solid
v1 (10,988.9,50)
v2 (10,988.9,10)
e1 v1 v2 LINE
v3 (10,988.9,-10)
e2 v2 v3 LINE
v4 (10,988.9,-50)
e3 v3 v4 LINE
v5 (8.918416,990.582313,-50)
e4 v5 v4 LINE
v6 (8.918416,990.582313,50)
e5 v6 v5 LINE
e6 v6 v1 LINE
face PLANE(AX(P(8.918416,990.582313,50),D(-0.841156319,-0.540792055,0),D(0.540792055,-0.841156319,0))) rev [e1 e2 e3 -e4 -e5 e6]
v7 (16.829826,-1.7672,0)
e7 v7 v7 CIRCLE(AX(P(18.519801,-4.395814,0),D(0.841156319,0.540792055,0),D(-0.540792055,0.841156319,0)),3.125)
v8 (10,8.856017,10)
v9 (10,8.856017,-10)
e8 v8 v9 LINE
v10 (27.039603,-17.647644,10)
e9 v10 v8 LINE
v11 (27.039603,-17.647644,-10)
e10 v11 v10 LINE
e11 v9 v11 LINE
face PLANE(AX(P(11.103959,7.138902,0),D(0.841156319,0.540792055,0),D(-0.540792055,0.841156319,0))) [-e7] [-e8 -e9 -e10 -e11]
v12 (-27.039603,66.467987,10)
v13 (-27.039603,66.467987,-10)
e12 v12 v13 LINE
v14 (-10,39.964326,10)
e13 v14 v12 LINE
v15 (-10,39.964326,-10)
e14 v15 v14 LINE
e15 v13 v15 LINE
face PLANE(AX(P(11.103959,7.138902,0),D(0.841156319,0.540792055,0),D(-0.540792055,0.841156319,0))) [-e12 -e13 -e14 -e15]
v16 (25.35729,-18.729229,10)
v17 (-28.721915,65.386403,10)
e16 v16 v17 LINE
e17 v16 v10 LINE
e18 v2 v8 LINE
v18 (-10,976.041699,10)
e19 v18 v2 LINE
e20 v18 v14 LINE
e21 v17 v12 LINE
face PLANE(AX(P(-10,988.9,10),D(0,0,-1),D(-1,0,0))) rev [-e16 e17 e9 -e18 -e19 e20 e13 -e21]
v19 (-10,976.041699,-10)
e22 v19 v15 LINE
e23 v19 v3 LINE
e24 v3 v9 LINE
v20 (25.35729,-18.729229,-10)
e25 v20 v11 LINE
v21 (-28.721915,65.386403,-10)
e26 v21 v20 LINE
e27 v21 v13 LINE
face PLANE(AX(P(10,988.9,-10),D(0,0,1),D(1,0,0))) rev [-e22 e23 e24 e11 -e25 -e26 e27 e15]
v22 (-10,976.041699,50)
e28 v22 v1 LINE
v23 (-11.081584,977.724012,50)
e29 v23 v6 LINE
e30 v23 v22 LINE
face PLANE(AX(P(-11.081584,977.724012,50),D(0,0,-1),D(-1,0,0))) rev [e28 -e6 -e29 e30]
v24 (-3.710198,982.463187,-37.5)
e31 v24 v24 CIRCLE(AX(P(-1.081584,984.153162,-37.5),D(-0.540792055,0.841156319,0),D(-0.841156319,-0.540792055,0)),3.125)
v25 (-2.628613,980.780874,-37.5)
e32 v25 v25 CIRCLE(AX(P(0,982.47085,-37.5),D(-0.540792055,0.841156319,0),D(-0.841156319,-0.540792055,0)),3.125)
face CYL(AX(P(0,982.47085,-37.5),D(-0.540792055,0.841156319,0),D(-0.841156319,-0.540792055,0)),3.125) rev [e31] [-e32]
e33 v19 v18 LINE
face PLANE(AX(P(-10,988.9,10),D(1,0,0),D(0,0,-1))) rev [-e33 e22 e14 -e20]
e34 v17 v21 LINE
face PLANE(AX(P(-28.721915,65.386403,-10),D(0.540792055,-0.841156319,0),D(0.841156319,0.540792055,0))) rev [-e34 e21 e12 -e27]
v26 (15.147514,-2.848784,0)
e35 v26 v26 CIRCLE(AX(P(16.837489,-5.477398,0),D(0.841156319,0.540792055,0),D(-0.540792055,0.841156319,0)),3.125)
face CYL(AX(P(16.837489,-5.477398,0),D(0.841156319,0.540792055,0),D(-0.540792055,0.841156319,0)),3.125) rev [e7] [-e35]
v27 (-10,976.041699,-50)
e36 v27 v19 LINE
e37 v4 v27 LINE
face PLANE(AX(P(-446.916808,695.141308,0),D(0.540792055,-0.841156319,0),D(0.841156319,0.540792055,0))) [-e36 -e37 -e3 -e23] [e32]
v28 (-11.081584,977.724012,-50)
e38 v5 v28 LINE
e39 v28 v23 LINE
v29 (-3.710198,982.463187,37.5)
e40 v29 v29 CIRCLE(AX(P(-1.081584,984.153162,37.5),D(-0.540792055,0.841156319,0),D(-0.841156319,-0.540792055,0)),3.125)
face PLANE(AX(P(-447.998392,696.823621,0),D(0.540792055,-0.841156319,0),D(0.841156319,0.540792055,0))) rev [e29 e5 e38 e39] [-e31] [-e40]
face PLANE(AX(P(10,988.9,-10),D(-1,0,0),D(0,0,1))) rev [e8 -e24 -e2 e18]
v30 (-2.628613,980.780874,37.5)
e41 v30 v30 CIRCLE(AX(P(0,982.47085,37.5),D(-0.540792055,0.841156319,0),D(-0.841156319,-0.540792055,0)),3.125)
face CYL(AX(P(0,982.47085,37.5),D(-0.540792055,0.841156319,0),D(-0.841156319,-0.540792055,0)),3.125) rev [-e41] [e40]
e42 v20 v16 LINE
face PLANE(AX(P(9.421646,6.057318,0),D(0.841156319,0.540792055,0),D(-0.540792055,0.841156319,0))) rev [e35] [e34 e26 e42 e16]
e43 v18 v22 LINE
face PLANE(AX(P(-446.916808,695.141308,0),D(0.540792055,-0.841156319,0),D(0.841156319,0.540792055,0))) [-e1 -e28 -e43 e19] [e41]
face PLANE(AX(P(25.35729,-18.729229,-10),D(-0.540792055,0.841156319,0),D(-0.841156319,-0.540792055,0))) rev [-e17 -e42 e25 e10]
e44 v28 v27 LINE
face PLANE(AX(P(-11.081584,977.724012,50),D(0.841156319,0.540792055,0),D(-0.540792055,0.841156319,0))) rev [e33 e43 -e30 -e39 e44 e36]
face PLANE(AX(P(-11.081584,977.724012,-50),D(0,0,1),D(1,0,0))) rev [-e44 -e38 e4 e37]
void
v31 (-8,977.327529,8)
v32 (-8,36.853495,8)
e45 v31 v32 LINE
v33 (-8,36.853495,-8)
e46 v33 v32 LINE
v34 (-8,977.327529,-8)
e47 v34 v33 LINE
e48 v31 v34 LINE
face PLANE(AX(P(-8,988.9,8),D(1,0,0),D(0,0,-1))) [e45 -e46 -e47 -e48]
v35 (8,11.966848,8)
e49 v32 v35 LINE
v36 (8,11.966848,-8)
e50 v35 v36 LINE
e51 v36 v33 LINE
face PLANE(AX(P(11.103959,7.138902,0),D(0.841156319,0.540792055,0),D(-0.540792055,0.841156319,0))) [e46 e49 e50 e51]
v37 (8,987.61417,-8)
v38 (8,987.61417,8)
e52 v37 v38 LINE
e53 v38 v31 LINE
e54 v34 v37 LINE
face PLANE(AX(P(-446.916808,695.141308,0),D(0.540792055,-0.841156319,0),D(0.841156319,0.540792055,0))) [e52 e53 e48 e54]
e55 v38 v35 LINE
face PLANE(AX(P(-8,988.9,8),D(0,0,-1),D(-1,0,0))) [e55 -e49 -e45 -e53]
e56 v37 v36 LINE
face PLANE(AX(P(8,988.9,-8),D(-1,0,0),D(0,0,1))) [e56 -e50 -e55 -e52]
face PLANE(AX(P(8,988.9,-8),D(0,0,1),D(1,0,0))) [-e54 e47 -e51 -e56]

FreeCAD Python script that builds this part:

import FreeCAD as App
import Part
import Sketcher


def add_polygon(sketch, points):
    """Adds a closed chain of lines whose ends are joined by coincident constraints."""
    first, n = sketch.GeometryCount, len(points)
    for a, b in zip(points, points[1:] + points[:1]):
        sketch.addGeometry(Part.LineSegment(App.Vector(*a, 0), App.Vector(*b, 0)), False)
    for i in range(n):
        sketch.addConstraint(Sketcher.Constraint("Coincident", first + i, 2, first + (i + 1) % n, 1))

doc = App.newDocument("Part")
body = doc.addObject("PartDesign::Body", "Body")

# Sketch on XZ plane
sketch1 = body.newObject("Sketcher::SketchObject", "Sketch")
sketch1.AttachmentSupport = (doc.getObject("XZ_Plane"), [""])
sketch1.MapMode = "FlatFace"
add_polygon(sketch1, [(10, 10), (10, -10), (-10, -10), (-10, 10)])  # lines 0-3
add_polygon(sketch1, [(-8, -8), (8, -8), (8, 8), (-8, 8)])  # lines 4-7
sketch1.addConstraint(Sketcher.Constraint("Vertical", 0))
sketch1.addConstraint(Sketcher.Constraint("Horizontal", 1))
sketch1.addConstraint(Sketcher.Constraint("Vertical", 2))
sketch1.addConstraint(Sketcher.Constraint("Horizontal", 3))
sketch1.addConstraint(Sketcher.Constraint("Horizontal", 4))
sketch1.addConstraint(Sketcher.Constraint("Vertical", 5))
sketch1.addConstraint(Sketcher.Constraint("Horizontal", 6))
sketch1.addConstraint(Sketcher.Constraint("Vertical", 7))
sketch1.addConstraint(Sketcher.Constraint("Symmetric", 0, 2, 2, 2, -1, 1))
sketch1.addConstraint(Sketcher.Constraint("Symmetric", 4, 2, 6, 2, -1, 1))
sketch1.addConstraint(Sketcher.Constraint("Equal", 3, 0))
sketch1.addConstraint(Sketcher.Constraint("Equal", 6, 5))
sketch1.addConstraint(Sketcher.Constraint("DistanceX", 1, 2, 1, 1, 20.0))
sketch1.addConstraint(Sketcher.Constraint("DistanceX", 4, 1, 4, 2, 16.0))
pad1 = body.newObject("PartDesign::Pad", "Pad")
pad1.Profile = sketch1
pad1.Length = 988.9
pad1.Reversed = True

# Sketch on XY plane
sketch2 = body.newObject("Sketcher::SketchObject", "Sketch001")
sketch2.AttachmentSupport = (doc.getObject("XY_Plane"), [""])
sketch2.MapMode = "FlatFace"
sketch2.AttachmentOffset = App.Placement(App.Vector(0, 0, 10), App.Rotation())
sketch2.addGeometry(Part.Circle(App.Vector(0, 10, 0), App.Vector(0, 0, 1), 5), False)
sketch2.addConstraint(Sketcher.Constraint("PointOnObject", 0, 3, -2))
sketch2.addConstraint(Sketcher.Constraint("Diameter", 0, 10.0))
sketch2.addConstraint(Sketcher.Constraint("DistanceY", -1, 1, 0, 3, 10.0))
pocket1 = body.newObject("PartDesign::Pocket", "Pocket")
pocket1.Profile = sketch2
pocket1.Type = "ThroughAll"

# Sketch on XY plane
sketch3 = body.newObject("Sketcher::SketchObject", "Sketch002")
sketch3.AttachmentSupport = (doc.getObject("XY_Plane"), [""])
sketch3.MapMode = "FlatFace"
sketch3.AttachmentOffset = App.Placement(App.Vector(0, 0, 10), App.Rotation())
add_polygon(sketch3, [(-10, 976), (10, 989), (-10, 989)])  # lines 0-2
sketch3.addConstraint(Sketcher.Constraint("Horizontal", 1))
sketch3.addConstraint(Sketcher.Constraint("Vertical", 2))
sketch3.addConstraint(Sketcher.Constraint("DistanceX", 1, 2, 1, 1, 20.0))
sketch3.addConstraint(Sketcher.Constraint("DistanceX", -1, 1, 0, 2, 10.0))
sketch3.addConstraint(Sketcher.Constraint("DistanceY", -1, 1, 0, 2, 988.9))
sketch3.addConstraint(Sketcher.Constraint("DistanceY", 2, 2, 2, 1, 12.858301))
pocket2 = body.newObject("PartDesign::Pocket", "Pocket001")
pocket2.Profile = sketch3
pocket2.Type = "ThroughAll"

# Sketch on XY plane
sketch4 = body.newObject("Sketcher::SketchObject", "Sketch003")
sketch4.AttachmentSupport = (doc.getObject("XY_Plane"), [""])
sketch4.MapMode = "FlatFace"
sketch4.AttachmentOffset = App.Placement(App.Vector(0, 0, -10), App.Rotation())
add_polygon(sketch4, [(-41, 89), (15, 0), (15, -42), (-41, -42)])  # lines 0-3
sketch4.addConstraint(Sketcher.Constraint("Vertical", 1))
sketch4.addConstraint(Sketcher.Constraint("Horizontal", 2))
sketch4.addConstraint(Sketcher.Constraint("Vertical", 3))
sketch4.addConstraint(Sketcher.Constraint("DistanceX", 2, 2, 2, 1, 56.843621))
sketch4.addConstraint(Sketcher.Constraint("DistanceY", 3, 1, 3, 2, 130.988761))
sketch4.addConstraint(Sketcher.Constraint("Distance", 0, 105.11179))
sketch4.addConstraint(Sketcher.Constraint("DistanceY", 1, 2, -1, 1, 42.24302))
sketch4.addConstraint(Sketcher.Constraint("DistanceX", -1, 1, 0, 2, 15.481316))
pocket3 = body.newObject("PartDesign::Pocket", "Pocket002")
pocket3.Profile = sketch4
pocket3.Type = "ThroughAll"
pocket3.Midplane = True

# Sketch on an angled plane
sketch5 = body.newObject("Sketcher::SketchObject", "Sketch004")
sketch5.Placement = App.Placement(App.Vector(11.103959, 7.138902, 0), App.Rotation(App.Vector(0, 0, 1), App.Vector(-0.540792055, 0.841156319, 0), App.Vector(-0.841156319, -0.540792055, 0), "ZXY"))
add_polygon(sketch5, [(-10, 71), (-10, -29), (10, -29), (10, 71)])  # lines 0-3
sketch5.addConstraint(Sketcher.Constraint("Vertical", 0))
sketch5.addConstraint(Sketcher.Constraint("Horizontal", 1))
sketch5.addConstraint(Sketcher.Constraint("Vertical", 2))
sketch5.addConstraint(Sketcher.Constraint("Horizontal", 3))
sketch5.addConstraint(Sketcher.Constraint("DistanceX", 1, 1, 1, 2, 20.0))
sketch5.addConstraint(Sketcher.Constraint("DistanceY", 0, 2, 0, 1, 100.0))
sketch5.addConstraint(Sketcher.Constraint("DistanceX", 0, 2, -1, 1, 10.0))
sketch5.addConstraint(Sketcher.Constraint("DistanceY", 0, 2, -1, 1, 29.46723))
pad2 = body.newObject("PartDesign::Pad", "Pad001")
pad2.Profile = sketch5
pad2.Length = 2

# Sketch on an angled plane
sketch6 = body.newObject("Sketcher::SketchObject", "Sketch005")
sketch6.Placement = App.Placement(App.Vector(-446.916808, 695.141308, 0), App.Rotation(App.Vector(0.841156319, 0.540792055, 0), App.Vector(0, 0, -1), App.Vector(-0.540792055, 0.841156319, 0), "ZXY"))
add_polygon(sketch6, [(519, 50), (519, -50), (543, -50), (543, 50)])  # lines 0-3
sketch6.addConstraint(Sketcher.Constraint("Vertical", 0))
sketch6.addConstraint(Sketcher.Constraint("Horizontal", 1))
sketch6.addConstraint(Sketcher.Constraint("Vertical", 2))
sketch6.addConstraint(Sketcher.Constraint("Horizontal", 3))
sketch6.addConstraint(Sketcher.Constraint("DistanceY", 0, 2, 0, 1, 100.0))
sketch6.addConstraint(Sketcher.Constraint("DistanceY", 0, 2, -1, 1, 50.0))
sketch6.addConstraint(Sketcher.Constraint("DistanceX", 1, 1, 1, 2, 23.776793))
sketch6.addConstraint(Sketcher.Constraint("DistanceX", -1, 1, 0, 2, 519.424033))
pad3 = body.newObject("PartDesign::Pad", "Pad002")
pad3.Profile = sketch6
pad3.Length = 2

# Sketch on an angled plane
sketch7 = body.newObject("Sketcher::SketchObject", "Sketch006")
sketch7.Placement = App.Placement(App.Vector(-447.998392, 696.823621, 0), App.Rotation(App.Vector(0.841156319, 0.540792055, 0), App.Vector(0, 0, -1), App.Vector(-0.540792055, 0.841156319, 0), "ZXY"))
sketch7.addGeometry(Part.Circle(App.Vector(531.3, 37.5, 0), App.Vector(0, 0, 1), 3.1), False)
sketch7.addGeometry(Part.Circle(App.Vector(531.3, -37.5, 0), App.Vector(0, 0, 1), 3.1), False)
sketch7.addConstraint(Sketcher.Constraint("Equal", 0, 1))
sketch7.addConstraint(Sketcher.Constraint("Symmetric", 0, 3, 1, 3, -1))
sketch7.addConstraint(Sketcher.Constraint("Diameter", 0, 6.25))
sketch7.addConstraint(Sketcher.Constraint("DistanceY", 1, 3, 0, 3, 75.0))
sketch7.addConstraint(Sketcher.Constraint("DistanceX", -1, 1, 0, 3, 531.31243))
pocket4 = body.newObject("PartDesign::Pocket", "Pocket003")
pocket4.Profile = sketch7
pocket4.Length = 2

# Sketch on an angled plane
sketch8 = body.newObject("Sketcher::SketchObject", "Sketch007")
sketch8.Placement = App.Placement(App.Vector(11.103959, 7.138902, 0), App.Rotation(App.Vector(0, 0, -1), App.Vector(-0.540792055, 0.841156319, 0), App.Vector(0.841156319, 0.540792055, 0), "ZXY"))
sketch8.addGeometry(Part.Circle(App.Vector(0, -13.7, 0), App.Vector(0, 0, 1), 3.1), False)
sketch8.addConstraint(Sketcher.Constraint("PointOnObject", 0, 3, -2))
sketch8.addConstraint(Sketcher.Constraint("Diameter", 0, 6.25))
sketch8.addConstraint(Sketcher.Constraint("DistanceY", 0, 3, -1, 1, 13.712928))
pocket5 = body.newObject("PartDesign::Pocket", "Pocket004")
pocket5.Profile = sketch8
pocket5.Length = 2

doc.recompute()
